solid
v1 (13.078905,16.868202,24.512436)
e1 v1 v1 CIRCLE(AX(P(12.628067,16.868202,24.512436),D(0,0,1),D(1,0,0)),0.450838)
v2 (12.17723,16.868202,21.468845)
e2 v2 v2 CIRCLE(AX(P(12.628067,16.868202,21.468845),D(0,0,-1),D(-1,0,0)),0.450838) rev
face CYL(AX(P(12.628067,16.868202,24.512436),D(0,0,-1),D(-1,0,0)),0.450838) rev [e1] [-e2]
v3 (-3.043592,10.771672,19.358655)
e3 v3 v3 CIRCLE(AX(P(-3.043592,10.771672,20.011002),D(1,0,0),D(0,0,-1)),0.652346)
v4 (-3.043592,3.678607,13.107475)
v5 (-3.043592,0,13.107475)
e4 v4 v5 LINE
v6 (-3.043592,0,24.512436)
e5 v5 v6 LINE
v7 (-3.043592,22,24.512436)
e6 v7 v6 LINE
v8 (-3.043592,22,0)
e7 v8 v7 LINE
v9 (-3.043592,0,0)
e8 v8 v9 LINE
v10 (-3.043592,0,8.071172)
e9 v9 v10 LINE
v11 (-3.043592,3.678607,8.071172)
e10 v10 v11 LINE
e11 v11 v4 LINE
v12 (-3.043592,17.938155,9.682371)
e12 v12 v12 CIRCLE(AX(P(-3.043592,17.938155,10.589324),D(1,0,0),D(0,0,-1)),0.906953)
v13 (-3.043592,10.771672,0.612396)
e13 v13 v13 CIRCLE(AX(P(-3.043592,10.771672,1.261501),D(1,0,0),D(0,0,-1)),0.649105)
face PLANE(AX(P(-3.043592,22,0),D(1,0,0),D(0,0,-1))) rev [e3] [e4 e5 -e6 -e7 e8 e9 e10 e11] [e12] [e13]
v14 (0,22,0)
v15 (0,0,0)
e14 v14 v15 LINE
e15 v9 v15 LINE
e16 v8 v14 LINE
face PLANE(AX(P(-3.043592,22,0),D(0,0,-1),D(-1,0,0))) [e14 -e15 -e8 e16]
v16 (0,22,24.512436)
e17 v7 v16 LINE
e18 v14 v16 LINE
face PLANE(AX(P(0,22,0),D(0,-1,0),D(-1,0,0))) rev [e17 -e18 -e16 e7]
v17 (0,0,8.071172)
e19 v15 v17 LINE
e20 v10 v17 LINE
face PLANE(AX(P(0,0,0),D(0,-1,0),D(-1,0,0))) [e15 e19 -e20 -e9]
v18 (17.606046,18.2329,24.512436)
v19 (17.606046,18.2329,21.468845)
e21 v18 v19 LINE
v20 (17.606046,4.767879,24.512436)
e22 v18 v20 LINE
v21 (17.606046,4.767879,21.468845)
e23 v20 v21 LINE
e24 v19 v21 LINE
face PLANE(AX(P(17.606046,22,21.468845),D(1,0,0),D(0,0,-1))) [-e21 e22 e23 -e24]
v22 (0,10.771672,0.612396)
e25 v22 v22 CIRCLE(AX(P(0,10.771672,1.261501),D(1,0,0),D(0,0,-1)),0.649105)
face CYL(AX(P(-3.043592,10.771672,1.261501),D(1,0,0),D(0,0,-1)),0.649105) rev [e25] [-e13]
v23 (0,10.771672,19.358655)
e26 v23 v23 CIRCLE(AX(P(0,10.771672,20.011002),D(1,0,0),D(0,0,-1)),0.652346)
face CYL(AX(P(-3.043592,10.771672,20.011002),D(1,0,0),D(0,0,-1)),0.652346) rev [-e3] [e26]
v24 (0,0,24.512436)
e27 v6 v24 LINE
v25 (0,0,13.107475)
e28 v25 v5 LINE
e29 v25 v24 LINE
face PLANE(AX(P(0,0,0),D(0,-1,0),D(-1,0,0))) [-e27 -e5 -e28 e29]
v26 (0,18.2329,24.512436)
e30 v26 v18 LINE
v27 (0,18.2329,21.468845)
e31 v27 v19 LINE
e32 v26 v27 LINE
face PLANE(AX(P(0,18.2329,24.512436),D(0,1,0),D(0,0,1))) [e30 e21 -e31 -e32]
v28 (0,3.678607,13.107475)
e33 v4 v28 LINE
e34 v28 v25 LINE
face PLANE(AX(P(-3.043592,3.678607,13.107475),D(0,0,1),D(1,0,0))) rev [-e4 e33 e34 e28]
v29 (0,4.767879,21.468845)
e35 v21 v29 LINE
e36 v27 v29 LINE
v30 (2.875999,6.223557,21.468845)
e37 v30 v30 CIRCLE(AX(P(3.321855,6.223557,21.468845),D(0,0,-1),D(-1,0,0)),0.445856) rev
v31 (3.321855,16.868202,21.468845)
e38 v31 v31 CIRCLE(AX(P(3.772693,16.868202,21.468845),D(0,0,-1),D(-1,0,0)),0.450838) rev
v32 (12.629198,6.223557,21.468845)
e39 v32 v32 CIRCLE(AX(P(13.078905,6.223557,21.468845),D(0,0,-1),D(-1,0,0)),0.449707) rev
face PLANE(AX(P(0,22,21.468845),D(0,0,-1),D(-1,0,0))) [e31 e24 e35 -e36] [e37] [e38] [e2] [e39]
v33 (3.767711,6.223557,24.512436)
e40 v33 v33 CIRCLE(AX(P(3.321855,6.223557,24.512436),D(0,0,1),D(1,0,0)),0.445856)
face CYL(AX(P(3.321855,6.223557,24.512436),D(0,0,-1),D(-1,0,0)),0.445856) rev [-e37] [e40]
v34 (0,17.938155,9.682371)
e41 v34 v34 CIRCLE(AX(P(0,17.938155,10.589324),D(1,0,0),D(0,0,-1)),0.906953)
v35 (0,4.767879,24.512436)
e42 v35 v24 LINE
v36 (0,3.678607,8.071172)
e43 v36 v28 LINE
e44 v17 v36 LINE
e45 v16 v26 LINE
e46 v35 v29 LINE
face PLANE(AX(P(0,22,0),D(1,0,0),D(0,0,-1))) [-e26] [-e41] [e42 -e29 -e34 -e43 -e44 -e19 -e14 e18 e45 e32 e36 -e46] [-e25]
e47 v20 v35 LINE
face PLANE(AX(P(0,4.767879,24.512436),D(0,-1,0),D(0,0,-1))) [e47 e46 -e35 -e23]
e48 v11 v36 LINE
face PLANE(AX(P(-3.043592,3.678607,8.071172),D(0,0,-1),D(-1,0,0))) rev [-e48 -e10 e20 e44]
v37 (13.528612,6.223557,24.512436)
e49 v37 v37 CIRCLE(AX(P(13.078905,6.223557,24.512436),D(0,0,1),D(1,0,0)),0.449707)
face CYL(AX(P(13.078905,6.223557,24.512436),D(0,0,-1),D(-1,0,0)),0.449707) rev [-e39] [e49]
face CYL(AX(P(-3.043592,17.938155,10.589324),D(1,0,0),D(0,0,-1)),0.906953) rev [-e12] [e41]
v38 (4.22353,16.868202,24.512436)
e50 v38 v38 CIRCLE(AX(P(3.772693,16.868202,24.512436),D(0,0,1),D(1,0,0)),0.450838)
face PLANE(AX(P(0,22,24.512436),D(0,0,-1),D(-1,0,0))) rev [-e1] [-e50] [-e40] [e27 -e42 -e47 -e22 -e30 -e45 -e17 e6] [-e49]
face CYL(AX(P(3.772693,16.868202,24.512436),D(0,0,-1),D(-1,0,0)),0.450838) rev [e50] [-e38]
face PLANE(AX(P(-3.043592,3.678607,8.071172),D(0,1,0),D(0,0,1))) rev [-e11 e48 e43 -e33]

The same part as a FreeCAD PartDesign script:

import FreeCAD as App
import Part
import Sketcher
from FreeCAD import Vector

doc = App.newDocument("Part")
body = doc.addObject("PartDesign::Body", "Body")

# Sketch on XZ plane
sketch1 = body.newObject("Sketcher::SketchObject", "Sketch")
sketch1.AttachmentSupport = (doc.getObject("XZ_Plane"), [""])
sketch1.MapMode = "FlatFace"
sketch1.addGeometry(Part.LineSegment(Vector(0, 21.5, 0), Vector(0, 0, 0)), False)
sketch1.addGeometry(Part.LineSegment(Vector(0, 0, 0), Vector(-3, 0, 0)), False)
sketch1.addGeometry(Part.LineSegment(Vector(-3, 0, 0), Vector(-3, 24.5, 0)), False)
sketch1.addGeometry(Part.LineSegment(Vector(-3, 24.5, 0), Vector(17.6, 24.5, 0)), False)
sketch1.addGeometry(Part.LineSegment(Vector(17.6, 24.5, 0), Vector(17.6, 21.5, 0)), False)
sketch1.addGeometry(Part.LineSegment(Vector(17.6, 21.5, 0), Vector(0, 21.5, 0)), False)
sketch1.addConstraint(Sketcher.Constraint("Coincident", 0, 2, 1, 1))
sketch1.addConstraint(Sketcher.Constraint("Coincident", 1, 2, 2, 1))
sketch1.addConstraint(Sketcher.Constraint("Coincident", 2, 2, 3, 1))
sketch1.addConstraint(Sketcher.Constraint("Coincident", 3, 2, 4, 1))
sketch1.addConstraint(Sketcher.Constraint("Coincident", 4, 2, 5, 1))
sketch1.addConstraint(Sketcher.Constraint("Coincident", 5, 2, 0, 1))
sketch1.addConstraint(Sketcher.Constraint("Vertical", 0))
sketch1.addConstraint(Sketcher.Constraint("Horizontal", 1))
sketch1.addConstraint(Sketcher.Constraint("Vertical", 2))
sketch1.addConstraint(Sketcher.Constraint("Horizontal", 3))
sketch1.addConstraint(Sketcher.Constraint("Vertical", 4))
sketch1.addConstraint(Sketcher.Constraint("Horizontal", 5))
sketch1.addConstraint(Sketcher.Constraint("Coincident", 0, 2, -1, 1))
sketch1.addConstraint(Sketcher.Constraint("Equal", 1, 4))
sketch1.addConstraint(Sketcher.Constraint("DistanceX", 1, 2, 1, 1, 3.043592))
sketch1.addConstraint(Sketcher.Constraint("DistanceX", 3, 1, 3, 2, 20.649638))
sketch1.addConstraint(Sketcher.Constraint("DistanceY", 0, 2, 0, 1, 21.468845))
pad1 = body.newObject("PartDesign::Pad", "Pad")
pad1.Profile = sketch1
pad1.Length = 22
pad1.Reversed = True

# Sketch on YZ plane
sketch2 = body.newObject("Sketcher::SketchObject", "Sketch001")
sketch2.AttachmentSupport = (doc.getObject("YZ_Plane"), [""])
sketch2.MapMode = "FlatFace"
sketch2.addGeometry(Part.Circle(Vector(10.8, 1.3, 0), Vector(0, 0, 1), 0.6), False)
sketch2.addGeometry(Part.Circle(Vector(10.8, 20, 0), Vector(0, 0, 1), 0.7), False)
sketch2.addGeometry(Part.Circle(Vector(17.9, 10.6, 0), Vector(0, 0, 1), 0.9), False)
sketch2.addGeometry(Part.LineSegment(Vector(3.7, 13.1, 0), Vector(-1.8, 13.1, 0)), False)
sketch2.addGeometry(Part.LineSegment(Vector(-1.8, 13.1, 0), Vector(-1.8, 8.1, 0)), False)
sketch2.addGeometry(Part.LineSegment(Vector(-1.8, 8.1, 0), Vector(3.7, 8.1, 0)), False)
sketch2.addGeometry(Part.LineSegment(Vector(3.7, 8.1, 0), Vector(3.7, 13.1, 0)), False)
sketch2.addConstraint(Sketcher.Constraint("Coincident", 3, 2, 4, 1))
sketch2.addConstraint(Sketcher.Constraint("Coincident", 4, 2, 5, 1))
sketch2.addConstraint(Sketcher.Constraint("Coincident", 5, 2, 6, 1))
sketch2.addConstraint(Sketcher.Constraint("Coincident", 6, 2, 3, 1))
sketch2.addConstraint(Sketcher.Constraint("Horizontal", 3))
sketch2.addConstraint(Sketcher.Constraint("Vertical", 4))
sketch2.addConstraint(Sketcher.Constraint("Horizontal", 5))
sketch2.addConstraint(Sketcher.Constraint("Vertical", 6))
sketch2.addConstraint(Sketcher.Constraint("Vertical", 0, 3, 1, 3))
sketch2.addConstraint(Sketcher.Constraint("Diameter", 0, 1.298211))
sketch2.addConstraint(Sketcher.Constraint("Diameter", 1, 1.304693))
sketch2.addConstraint(Sketcher.Constraint("Diameter", 2, 1.813906))
sketch2.addConstraint(Sketcher.Constraint("DistanceY", -1, 1, 1, 3, 20.011002))
sketch2.addConstraint(Sketcher.Constraint("DistanceY", -1, 1, 0, 3, 1.261501))
sketch2.addConstraint(Sketcher.Constraint("DistanceX", 3, 2, 3, 1, 5.470796))
sketch2.addConstraint(Sketcher.Constraint("DistanceY", 4, 2, 4, 1, 5.036303))
sketch2.addConstraint(Sketcher.Constraint("DistanceX", 3, 2, -1, 1, 1.79219))
sketch2.addConstraint(Sketcher.Constraint("DistanceY", -1, 1, 4, 2, 8.071172))
sketch2.addConstraint(Sketcher.Constraint("DistanceY", 2, 3, 1, 3, 9.421678))
sketch2.addConstraint(Sketcher.Constraint("DistanceX", 3, 2, 1, 3, 12.563862))
sketch2.addConstraint(Sketcher.Constraint("DistanceX", 5, 2, 2, 3, 14.259548))
pocket1 = body.newObject("PartDesign::Pocket", "Pocket")
pocket1.Profile = sketch2
pocket1.Type = "ThroughAll"

# Sketch on XY plane
sketch3 = body.newObject("Sketcher::SketchObject", "Sketch002")
sketch3.AttachmentSupport = (doc.getObject("XY_Plane"), [""])
sketch3.MapMode = "FlatFace"
sketch3.addGeometry(Part.Circle(Vector(3.77, 16.87, 0), Vector(0, 0, 1), 0.45), False)
sketch3.addGeometry(Part.Circle(Vector(12.63, 16.87, 0), Vector(0, 0, 1), 0.45), False)
sketch3.addGeometry(Part.Circle(Vector(13.08, 6.22, 0), Vector(0, 0, 1), 0.45), False)
sketch3.addGeometry(Part.Circle(Vector(3.32, 6.22, 0), Vector(0, 0, 1), 0.45), False)
sketch3.addConstraint(Sketcher.Constraint("Equal", 0, 1))
sketch3.addConstraint(Sketcher.Constraint("Horizontal", 0, 3, 1, 3))
sketch3.addConstraint(Sketcher.Constraint("Horizontal", 2, 3, 3, 3))
sketch3.addConstraint(Sketcher.Constraint("Diameter", 3, 0.891712))
sketch3.addConstraint(Sketcher.Constraint("Diameter", 0, 0.901675))
sketch3.addConstraint(Sketcher.Constraint("Diameter", 2, 0.899414))
sketch3.addConstraint(Sketcher.Constraint("DistanceY", -1, 1, 0, 3, 16.868202))
sketch3.addConstraint(Sketcher.Constraint("DistanceX", 3, 3, 2, 3, 9.75705))
sketch3.addConstraint(Sketcher.Constraint("DistanceX", -1, 1, 0, 3, 3.772693))
sketch3.addConstraint(Sketcher.Constraint("DistanceX", -1, 1, 1, 3, 12.628067))
sketch3.addConstraint(Sketcher.Constraint("DistanceX", -1, 1, 2, 3, 13.078905))
sketch3.addConstraint(Sketcher.Constraint("DistanceY", -1, 1, 2, 3, 6.223557))
pocket2 = body.newObject("PartDesign::Pocket", "Pocket001")
pocket2.Profile = sketch3
pocket2.Type = "ThroughAll"
pocket2.Reversed = True

# Sketch on XY plane
sketch4 = body.newObject("Sketcher::SketchObject", "Sketch003")
sketch4.AttachmentSupport = (doc.getObject("XY_Plane"), [""])
sketch4.MapMode = "FlatFace"
sketch4.addGeometry(Part.LineSegment(Vector(0, 22, 0), Vector(0, 18.2, 0)), False)
sketch4.addGeometry(Part.LineSegment(Vector(0, 18.2, 0), Vector(17.6, 18.2, 0)), False)
sketch4.addGeometry(Part.LineSegment(Vector(17.6, 18.2, 0), Vector(17.6, 22, 0)), False)
sketch4.addGeometry(Part.LineSegment(Vector(17.6, 22, 0), Vector(0, 22, 0)), False)
sketch4.addGeometry(Part.LineSegment(Vector(0, 4.8, 0), Vector(0, 0, 0)), False)
sketch4.addGeometry(Part.LineSegment(Vector(0, 0, 0), Vector(17.6, 0, 0)), False)
sketch4.addGeometry(Part.LineSegment(Vector(17.6, 0, 0), Vector(17.6, 4.8, 0)), False)
sketch4.addGeometry(Part.LineSegment(Vector(17.6, 4.8, 0), Vector(0, 4.8, 0)), False)
sketch4.addConstraint(Sketcher.Constraint("Coincident", 0, 2, 1, 1))
sketch4.addConstraint(Sketcher.Constraint("Coincident", 1, 2, 2, 1))
sketch4.addConstraint(Sketcher.Constraint("Coincident", 2, 2, 3, 1))
sketch4.addConstraint(Sketcher.Constraint("Coincident", 3, 2, 0, 1))
sketch4.addConstraint(Sketcher.Constraint("Coincident", 4, 2, 5, 1))
sketch4.addConstraint(Sketcher.Constraint("Coincident", 5, 2, 6, 1))
sketch4.addConstraint(Sketcher.Constraint("Coincident", 6, 2, 7, 1))
sketch4.addConstraint(Sketcher.Constraint("Coincident", 7, 2, 4, 1))
sketch4.addConstraint(Sketcher.Constraint("Vertical", 0))
sketch4.addConstraint(Sketcher.Constraint("Horizontal", 1))
sketch4.addConstraint(Sketcher.Constraint("Vertical", 2))
sketch4.addConstraint(Sketcher.Constraint("Horizontal", 3))
sketch4.addConstraint(Sketcher.Constraint("Vertical", 4))
sketch4.addConstraint(Sketcher.Constraint("Horizontal", 5))
sketch4.addConstraint(Sketcher.Constraint("Vertical", 6))
sketch4.addConstraint(Sketcher.Constraint("Horizontal", 7))
sketch4.addConstraint(Sketcher.Constraint("Coincident", 4, 2, -1, 1))
sketch4.addConstraint(Sketcher.Constraint("PointOnObject", 0, 2, -2))
sketch4.addConstraint(Sketcher.Constraint("Vertical", 2, 2, 5, 2))
sketch4.addConstraint(Sketcher.Constraint("DistanceY", -1, 1, 2, 2, 22.0))
sketch4.addConstraint(Sketcher.Constraint("DistanceY", 0, 2, 0, 1, 3.7671))
sketch4.addConstraint(Sketcher.Constraint("DistanceY", 4, 2, 4, 1, 4.767879))
sketch4.addConstraint(Sketcher.Constraint("DistanceX", 1, 1, 1, 2, 17.606046))
pocket3 = body.newObject("PartDesign::Pocket", "Pocket002")
pocket3.Profile = sketch4
pocket3.Type = "ThroughAll"
pocket3.Reversed = True

doc.recompute()
